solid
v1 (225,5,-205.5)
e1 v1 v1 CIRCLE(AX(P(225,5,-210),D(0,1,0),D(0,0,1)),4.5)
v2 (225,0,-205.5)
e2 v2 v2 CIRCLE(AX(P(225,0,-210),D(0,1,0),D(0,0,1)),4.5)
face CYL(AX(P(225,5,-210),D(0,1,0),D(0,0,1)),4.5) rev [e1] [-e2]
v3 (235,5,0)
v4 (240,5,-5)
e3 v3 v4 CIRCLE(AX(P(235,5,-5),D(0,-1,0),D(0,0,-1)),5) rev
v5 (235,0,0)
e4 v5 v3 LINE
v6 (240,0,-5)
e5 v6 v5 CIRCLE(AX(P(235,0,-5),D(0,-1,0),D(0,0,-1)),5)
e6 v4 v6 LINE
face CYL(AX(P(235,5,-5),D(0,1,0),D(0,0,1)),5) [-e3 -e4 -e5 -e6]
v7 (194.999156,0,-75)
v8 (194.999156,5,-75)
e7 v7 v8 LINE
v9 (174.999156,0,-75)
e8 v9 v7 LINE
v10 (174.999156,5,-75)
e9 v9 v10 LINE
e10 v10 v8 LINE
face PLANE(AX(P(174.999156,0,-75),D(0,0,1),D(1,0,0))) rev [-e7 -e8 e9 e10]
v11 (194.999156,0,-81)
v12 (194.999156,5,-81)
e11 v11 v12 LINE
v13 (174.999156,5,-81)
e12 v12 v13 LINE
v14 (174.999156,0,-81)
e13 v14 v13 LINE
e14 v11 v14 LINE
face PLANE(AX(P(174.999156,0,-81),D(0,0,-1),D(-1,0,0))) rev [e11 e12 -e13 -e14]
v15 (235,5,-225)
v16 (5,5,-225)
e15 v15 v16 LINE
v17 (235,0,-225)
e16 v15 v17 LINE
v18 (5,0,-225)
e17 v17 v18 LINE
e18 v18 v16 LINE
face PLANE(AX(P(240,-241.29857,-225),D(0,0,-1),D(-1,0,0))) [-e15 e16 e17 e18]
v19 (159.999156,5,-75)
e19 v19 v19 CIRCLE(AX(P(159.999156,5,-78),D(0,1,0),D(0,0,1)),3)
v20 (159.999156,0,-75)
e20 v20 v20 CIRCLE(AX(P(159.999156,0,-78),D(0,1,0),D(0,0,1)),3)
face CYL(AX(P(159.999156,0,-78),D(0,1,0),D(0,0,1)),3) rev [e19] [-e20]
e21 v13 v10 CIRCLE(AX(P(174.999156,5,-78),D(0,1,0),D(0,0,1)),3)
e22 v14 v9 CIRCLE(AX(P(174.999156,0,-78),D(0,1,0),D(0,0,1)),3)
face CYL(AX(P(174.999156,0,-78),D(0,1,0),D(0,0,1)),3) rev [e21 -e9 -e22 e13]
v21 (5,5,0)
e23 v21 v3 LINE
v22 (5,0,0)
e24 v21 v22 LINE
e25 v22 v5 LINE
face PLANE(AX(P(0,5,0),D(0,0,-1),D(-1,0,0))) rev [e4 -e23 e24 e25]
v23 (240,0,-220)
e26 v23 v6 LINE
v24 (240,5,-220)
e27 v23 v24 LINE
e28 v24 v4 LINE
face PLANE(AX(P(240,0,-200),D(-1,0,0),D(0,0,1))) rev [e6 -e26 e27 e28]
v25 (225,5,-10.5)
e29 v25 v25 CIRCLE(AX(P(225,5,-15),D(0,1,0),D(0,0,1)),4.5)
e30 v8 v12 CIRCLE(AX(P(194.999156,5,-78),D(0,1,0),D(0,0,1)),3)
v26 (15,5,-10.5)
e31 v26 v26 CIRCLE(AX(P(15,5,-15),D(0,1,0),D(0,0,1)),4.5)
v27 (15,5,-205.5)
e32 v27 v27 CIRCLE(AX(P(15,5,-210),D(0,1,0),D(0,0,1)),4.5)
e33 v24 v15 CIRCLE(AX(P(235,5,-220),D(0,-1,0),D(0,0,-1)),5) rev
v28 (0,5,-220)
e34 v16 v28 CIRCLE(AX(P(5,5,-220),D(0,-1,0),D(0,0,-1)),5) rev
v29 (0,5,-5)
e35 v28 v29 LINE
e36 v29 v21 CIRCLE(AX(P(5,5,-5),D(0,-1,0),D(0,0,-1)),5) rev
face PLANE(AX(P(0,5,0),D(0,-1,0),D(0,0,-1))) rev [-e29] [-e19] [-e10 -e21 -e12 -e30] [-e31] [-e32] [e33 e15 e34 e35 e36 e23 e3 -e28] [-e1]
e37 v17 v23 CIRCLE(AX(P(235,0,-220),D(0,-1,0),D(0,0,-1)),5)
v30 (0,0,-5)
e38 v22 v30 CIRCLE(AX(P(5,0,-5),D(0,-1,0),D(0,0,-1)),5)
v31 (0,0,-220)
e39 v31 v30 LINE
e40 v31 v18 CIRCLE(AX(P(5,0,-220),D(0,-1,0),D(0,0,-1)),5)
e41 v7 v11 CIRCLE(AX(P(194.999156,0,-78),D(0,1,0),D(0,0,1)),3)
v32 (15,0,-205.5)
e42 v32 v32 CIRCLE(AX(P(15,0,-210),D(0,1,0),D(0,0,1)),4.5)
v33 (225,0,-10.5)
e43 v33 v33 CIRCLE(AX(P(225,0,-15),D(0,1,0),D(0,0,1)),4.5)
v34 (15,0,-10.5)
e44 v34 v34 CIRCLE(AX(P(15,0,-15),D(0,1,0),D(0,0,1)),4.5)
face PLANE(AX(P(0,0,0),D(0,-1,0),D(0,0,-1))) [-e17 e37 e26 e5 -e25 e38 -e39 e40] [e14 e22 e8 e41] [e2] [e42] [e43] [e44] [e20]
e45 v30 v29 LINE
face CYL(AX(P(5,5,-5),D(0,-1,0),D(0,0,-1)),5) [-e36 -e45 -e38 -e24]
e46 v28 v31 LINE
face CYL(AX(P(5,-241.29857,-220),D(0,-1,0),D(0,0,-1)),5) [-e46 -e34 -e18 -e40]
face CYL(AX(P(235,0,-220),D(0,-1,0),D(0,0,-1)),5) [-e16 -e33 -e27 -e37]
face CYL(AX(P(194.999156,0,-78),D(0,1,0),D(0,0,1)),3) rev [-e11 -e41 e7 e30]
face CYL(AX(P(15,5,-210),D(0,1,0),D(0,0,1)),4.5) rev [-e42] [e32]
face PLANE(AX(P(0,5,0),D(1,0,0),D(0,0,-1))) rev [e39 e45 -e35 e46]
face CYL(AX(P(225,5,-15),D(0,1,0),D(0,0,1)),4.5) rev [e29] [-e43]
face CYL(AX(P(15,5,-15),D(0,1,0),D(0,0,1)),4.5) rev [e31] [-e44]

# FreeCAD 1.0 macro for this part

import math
import FreeCAD as App
import Part
import Sketcher
from FreeCAD import Vector
Q = App.Units.Quantity


def edges_at(feature, points):
    """Names of the edges that pass closest to the given points."""
    edges = feature.Shape.Edges
    near = lambda p: min(range(len(edges)), key=lambda i: edges[i].distToShape(Part.Vertex(*p))[0])
    return sorted({f"Edge{near(p) + 1}" for p in points})

doc = App.newDocument("Part")
body = doc.addObject("PartDesign::Body", "Body")

# Sketch on XZ plane
sketch1 = body.newObject("Sketcher::SketchObject", "Sketch")
sketch1.AttachmentSupport = (doc.getObject("XZ_Plane"), [""])
sketch1.MapMode = "FlatFace"
sketch1.addGeometry([
    Part.LineSegment(Vector(0, -200, 0), Vector(0, 0, 0)),
    Part.LineSegment(Vector(0, 0, 0), Vector(350, 0, 0)),
    Part.LineSegment(Vector(350, 0, 0), Vector(350, -200, 0)),
    Part.LineSegment(Vector(350, -200, 0), Vector(0, -200, 0)),
], False)
sketch1.addConstraint([
    Sketcher.Constraint("Coincident", 0, 2, 1, 1),
    Sketcher.Constraint("Coincident", 1, 2, 2, 1),
    Sketcher.Constraint("Coincident", 2, 2, 3, 1),
    Sketcher.Constraint("Coincident", 3, 2, 0, 1),
    Sketcher.Constraint("Vertical", 0),
    Sketcher.Constraint("Horizontal", 1),
    Sketcher.Constraint("Vertical", 2),
    Sketcher.Constraint("Horizontal", 3),
    Sketcher.Constraint("Coincident", 0, 2, -1, 1),
    Sketcher.Constraint("DistanceX", 1, 1, 1, 2, Q("350 mm")),
    Sketcher.Constraint("DistanceY", 0, 1, 0, 2, Q("200 mm")),
])
pad1 = body.newObject("PartDesign::Pad", "Pad")
pad1.Profile = sketch1
pad1.Length = 5
pad1.Reversed = True

# Sketch on XZ plane
sketch2 = body.newObject("Sketcher::SketchObject", "Sketch001")
sketch2.AttachmentSupport = (doc.getObject("XZ_Plane"), [""])
sketch2.MapMode = "FlatFace"
sketch2.AttachmentOffset = App.Placement(Vector(0, 0, -5), App.Rotation())
sketch2.addGeometry([
    Part.Circle(Vector(279.7, -76.5, 0), Vector(0, 0, 1), 2.2),
    Part.Circle(Vector(279.7, -123.5, 0), Vector(0, 0, 1), 2.2),
    Part.Circle(Vector(303.2, -100, 0), Vector(0, 0, 1), 2.2),
    Part.Circle(Vector(256.2, -100, 0), Vector(0, 0, 1), 2.2),
], False)
sketch2.addConstraint([
    Sketcher.Constraint("Equal", 0, 1),
    Sketcher.Constraint("Equal", 1, 2),
    Sketcher.Constraint("Equal", 2, 3),
    Sketcher.Constraint("Horizontal", 2, 3, 3, 3),
    Sketcher.Constraint("Vertical", 0, 3, 1, 3),
    Sketcher.Constraint("Diameter", 0, Q("4.5 mm")),
    Sketcher.Constraint("DistanceY", 2, 3, -1, 1, Q("100 mm")),
    Sketcher.Constraint("DistanceY", 1, 3, 0, 3, Q("47 mm")),
    Sketcher.Constraint("DistanceX", 3, 3, 2, 3, Q("47 mm")),
    Sketcher.Constraint("DistanceY", 0, 3, -1, 1, Q("76.5 mm")),
    Sketcher.Constraint("DistanceX", 0, 3, 2, 3, Q("23.5 mm")),
    Sketcher.Constraint("DistanceX", -1, 1, 0, 3, Q("279.726995 mm")),
])
doc.recompute()
hole = body.newObject("PartDesign::Hole", "Hole")
hole.Profile = sketch2
hole.ThreadType = "None"
hole.Diameter = 4.5
hole.DepthType = "Dimension"
hole.Depth = 10
hole.DrillPoint = "Angled"
hole.DrillPointAngle = 118
hole.Reversed = True

# Sketch on XZ plane
sketch3 = body.newObject("Sketcher::SketchObject", "Sketch002")
sketch3.AttachmentSupport = (doc.getObject("XZ_Plane"), [""])
sketch3.MapMode = "FlatFace"
sketch3.AttachmentOffset = App.Placement(Vector(0, 0, -5), App.Rotation())
sketch3.addGeometry([
    Part.Circle(Vector(160, -78, 0), Vector(0, 0, 1), 3),  # 0
    Part.LineSegment(Vector(195, -81, 0), Vector(175, -81, 0)),  # 1
    Part.ArcOfCircle(Part.Circle(Vector(175, -78, 0), Vector(0, 0, 1), 3), math.radians(90), math.radians(270)),  # 2
    Part.LineSegment(Vector(175, -75, 0), Vector(195, -75, 0)),  # 3
    Part.ArcOfCircle(Part.Circle(Vector(195, -78, 0), Vector(0, 0, 1), 3), math.radians(-90), math.radians(90)),  # 4
], False)
sketch3.addConstraint([
    Sketcher.Constraint("Tangent", 1, 2, 2, 2),
    Sketcher.Constraint("Tangent", 2, 1, 3, 1),
    Sketcher.Constraint("Tangent", 3, 2, 4, 2),
    Sketcher.Constraint("Tangent", 4, 1, 1, 1),
    Sketcher.Constraint("Horizontal", 1),
    Sketcher.Constraint("Horizontal", 3),
    Sketcher.Constraint("Equal", 0, 2),
    Sketcher.Constraint("Horizontal", 0, 3, 2, 3),
    Sketcher.Constraint("Diameter", 0, Q("6 mm")),
    Sketcher.Constraint("DistanceX", 1, 2, 1, 1, Q("20 mm")),
    Sketcher.Constraint("DistanceY", 0, 3, -1, 1, Q("78 mm")),
    Sketcher.Constraint("DistanceX", 0, 3, 2, 3, Q("15 mm")),
    Sketcher.Constraint("DistanceX", -1, 1, 0, 3, Q("159.999156 mm")),
])
pocket1 = body.newObject("PartDesign::Pocket", "Pocket")
pocket1.Profile = sketch3
pocket1.Type = "ThroughAll"
pocket1.Reversed = True

# Sketch on XZ plane
sketch4 = body.newObject("Sketcher::SketchObject", "Sketch003")
sketch4.AttachmentSupport = (doc.getObject("XZ_Plane"), [""])
sketch4.MapMode = "FlatFace"
sketch4.AttachmentOffset = App.Placement(Vector(0, 0, -5), App.Rotation())
sketch4.addGeometry([
    Part.LineSegment(Vector(240, -200, 0), Vector(240, 0, 0)),
    Part.LineSegment(Vector(240, 0, 0), Vector(350, 0, 0)),
    Part.LineSegment(Vector(350, 0, 0), Vector(350, -200, 0)),
    Part.LineSegment(Vector(350, -200, 0), Vector(240, -200, 0)),
], False)
sketch4.addConstraint([
    Sketcher.Constraint("Coincident", 0, 2, 1, 1),
    Sketcher.Constraint("Coincident", 1, 2, 2, 1),
    Sketcher.Constraint("Coincident", 2, 2, 3, 1),
    Sketcher.Constraint("Coincident", 3, 2, 0, 1),
    Sketcher.Constraint("Vertical", 0),
    Sketcher.Constraint("Horizontal", 1),
    Sketcher.Constraint("Vertical", 2),
    Sketcher.Constraint("Horizontal", 3),
    Sketcher.Constraint("PointOnObject", 0, 2, -1),
    Sketcher.Constraint("DistanceX", 1, 1, 1, 2, Q("110 mm")),
    Sketcher.Constraint("DistanceY", 0, 1, 0, 2, Q("200 mm")),
    Sketcher.Constraint("DistanceX", -1, 1, 0, 2, Q("240 mm")),
])
pocket2 = body.newObject("PartDesign::Pocket", "Pocket001")
pocket2.Profile = sketch4
pocket2.Type = "ThroughAll"
pocket2.Reversed = True

# Sketch on XZ plane
sketch5 = body.newObject("Sketcher::SketchObject", "Sketch004")
sketch5.AttachmentSupport = (doc.getObject("XZ_Plane"), [""])
sketch5.MapMode = "FlatFace"
sketch5.AttachmentOffset = App.Placement(Vector(0, 0, -5), App.Rotation())
sketch5.addGeometry([
    Part.LineSegment(Vector(0, -225, 0), Vector(0, -200, 0)),
    Part.LineSegment(Vector(0, -200, 0), Vector(240, -200, 0)),
    Part.LineSegment(Vector(240, -200, 0), Vector(240, -225, 0)),
    Part.LineSegment(Vector(240, -225, 0), Vector(0, -225, 0)),
], False)
sketch5.addConstraint([
    Sketcher.Constraint("Coincident", 0, 2, 1, 1),
    Sketcher.Constraint("Coincident", 1, 2, 2, 1),
    Sketcher.Constraint("Coincident", 2, 2, 3, 1),
    Sketcher.Constraint("Coincident", 3, 2, 0, 1),
    Sketcher.Constraint("Vertical", 0),
    Sketcher.Constraint("Horizontal", 1),
    Sketcher.Constraint("Vertical", 2),
    Sketcher.Constraint("Horizontal", 3),
    Sketcher.Constraint("PointOnObject", 0, 2, -2),
    Sketcher.Constraint("DistanceX", 1, 1, 1, 2, Q("240 mm")),
    Sketcher.Constraint("DistanceY", 0, 1, 0, 2, Q("25 mm")),
    Sketcher.Constraint("DistanceY", 0, 2, -1, 1, Q("200 mm")),
])
pad2 = body.newObject("PartDesign::Pad", "Pad001")
pad2.Profile = sketch5
pad2.Length = 5

# Sketch on XZ plane
sketch6 = body.newObject("Sketcher::SketchObject", "Sketch005")
sketch6.AttachmentSupport = (doc.getObject("XZ_Plane"), [""])
sketch6.MapMode = "FlatFace"
sketch6.AttachmentOffset = App.Placement(Vector(0, 0, -5), App.Rotation())
sketch6.addGeometry([
    Part.Circle(Vector(15, -15, 0), Vector(0, 0, 1), 4.5),
    Part.Circle(Vector(225, -15, 0), Vector(0, 0, 1), 4.5),
    Part.Circle(Vector(225, -210, 0), Vector(0, 0, 1), 4.5),
    Part.Circle(Vector(15, -210, 0), Vector(0, 0, 1), 4.5),
], False)
sketch6.addConstraint([
    Sketcher.Constraint("Equal", 0, 1),
    Sketcher.Constraint("Equal", 1, 2),
    Sketcher.Constraint("Equal", 2, 3),
    Sketcher.Constraint("Horizontal", 0, 3, 1, 3),
    Sketcher.Constraint("Horizontal", 2, 3, 3, 3),
    Sketcher.Constraint("Vertical", 1, 3, 2, 3),
    Sketcher.Constraint("Vertical", 0, 3, 3, 3),
    Sketcher.Constraint("Diameter", 0, Q("9 mm")),
    Sketcher.Constraint("DistanceX", -1, 1, 0, 3, Q("15 mm")),
    Sketcher.Constraint("DistanceY", 0, 3, -1, 1, Q("15 mm")),
    Sketcher.Constraint("DistanceX", -1, 1, 1, 3, Q("225 mm")),
    Sketcher.Constraint("DistanceY", 2, 3, -1, 1, Q("210 mm")),
])
doc.recompute()
hole2 = body.newObject("PartDesign::Hole", "Hole001")
hole2.Profile = sketch6
hole2.ThreadType = "None"
hole2.Diameter = 9
hole2.DepthType = "ThroughAll"
hole2.Reversed = True
doc.recompute()

fillet = body.newObject("PartDesign::Fillet", "Fillet")
fillet.Base = (hole2, edges_at(hole2, [
    (240, 2.5, 0),
    (0, 2.5, 0),
    (0, 2.5, -225),
    (240, 2.5, -225),
]))
fillet.Radius = 5

doc.recompute()
